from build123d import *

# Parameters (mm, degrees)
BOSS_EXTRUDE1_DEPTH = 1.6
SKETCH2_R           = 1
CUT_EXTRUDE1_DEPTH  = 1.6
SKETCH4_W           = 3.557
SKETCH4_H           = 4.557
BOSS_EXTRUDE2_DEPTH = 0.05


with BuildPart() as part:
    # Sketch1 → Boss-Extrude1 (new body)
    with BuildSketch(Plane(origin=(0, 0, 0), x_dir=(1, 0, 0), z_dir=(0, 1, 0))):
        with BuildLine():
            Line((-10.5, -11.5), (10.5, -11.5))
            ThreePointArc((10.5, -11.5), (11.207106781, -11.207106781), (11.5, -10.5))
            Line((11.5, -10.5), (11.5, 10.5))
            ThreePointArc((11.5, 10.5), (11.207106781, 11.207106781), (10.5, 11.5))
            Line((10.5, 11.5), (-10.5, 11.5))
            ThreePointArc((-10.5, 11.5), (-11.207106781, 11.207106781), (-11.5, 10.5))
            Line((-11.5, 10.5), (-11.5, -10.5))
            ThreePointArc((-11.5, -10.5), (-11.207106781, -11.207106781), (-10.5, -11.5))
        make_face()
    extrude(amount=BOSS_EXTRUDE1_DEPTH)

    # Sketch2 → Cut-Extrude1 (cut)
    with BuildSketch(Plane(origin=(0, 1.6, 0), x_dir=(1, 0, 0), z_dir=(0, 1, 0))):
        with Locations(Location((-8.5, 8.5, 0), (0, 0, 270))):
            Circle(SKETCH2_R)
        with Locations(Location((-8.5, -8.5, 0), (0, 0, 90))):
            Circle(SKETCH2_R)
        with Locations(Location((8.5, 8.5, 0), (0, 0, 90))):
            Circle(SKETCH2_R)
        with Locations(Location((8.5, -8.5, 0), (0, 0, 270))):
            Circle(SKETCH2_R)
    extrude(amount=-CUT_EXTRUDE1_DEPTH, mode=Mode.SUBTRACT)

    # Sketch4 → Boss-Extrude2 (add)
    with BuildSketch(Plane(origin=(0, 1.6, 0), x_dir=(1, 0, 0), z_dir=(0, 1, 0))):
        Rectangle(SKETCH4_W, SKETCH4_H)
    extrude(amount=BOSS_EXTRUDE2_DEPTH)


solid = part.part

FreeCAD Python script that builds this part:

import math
import FreeCAD as App
import Part
import Sketcher
Q = App.Units.Quantity


def add_polygon(sketch, points):
    """Adds a closed chain of lines whose ends are joined by coincident constraints."""
    first, n = sketch.GeometryCount, len(points)
    for a, b in zip(points, points[1:] + points[:1]):
        sketch.addGeometry(Part.LineSegment(App.Vector(*a, 0), App.Vector(*b, 0)), False)
    for i in range(n):
        sketch.addConstraint(Sketcher.Constraint("Coincident", first + i, 2, first + (i + 1) % n, 1))

doc = App.newDocument("Part")
params = doc.addObject("Spreadsheet::Sheet", "Params")
for row, (alias, value) in enumerate([
    ("sketch1_radius", "1 mm"),
    ("sketch1_width", "21 mm"),
    ("pad1_length", "1.6 mm"),
    ("sketch2_diameter", "2 mm"),
    ("pocket1_length", "1.6 mm"),
    ("pad2_length", "0.05 mm"),
], start=1):
    params.set(f"A{row}", alias)
    params.set(f"B{row}", "=" + value)
    params.setAlias(f"B{row}", alias)

body = doc.addObject("PartDesign::Body", "Body")

# Sketch on XZ plane
sketch1 = body.newObject("Sketcher::SketchObject", "Sketch")
sketch1.AttachmentSupport = (doc.getObject("XZ_Plane"), [""])
sketch1.MapMode = "FlatFace"
sketch1.addGeometry([
    Part.LineSegment(App.Vector(-10.5, 11.5, 0), App.Vector(10.5, 11.5, 0)),  # 0
    Part.ArcOfCircle(Part.Circle(App.Vector(10.5, 10.5, 0), App.Vector(0, 0, 1), 1), math.radians(0), math.radians(90)),  # 1
    Part.LineSegment(App.Vector(11.5, 10.5, 0), App.Vector(11.5, -10.5, 0)),  # 2
    Part.ArcOfCircle(Part.Circle(App.Vector(10.5, -10.5, 0), App.Vector(0, 0, 1), 1), math.radians(-90), math.radians(0)),  # 3
    Part.LineSegment(App.Vector(10.5, -11.5, 0), App.Vector(-10.5, -11.5, 0)),  # 4
    Part.ArcOfCircle(Part.Circle(App.Vector(-10.5, -10.5, 0), App.Vector(0, 0, 1), 1), math.radians(-180), math.radians(-90)),  # 5
    Part.LineSegment(App.Vector(-11.5, -10.5, 0), App.Vector(-11.5, 10.5, 0)),  # 6
    Part.ArcOfCircle(Part.Circle(App.Vector(-10.5, 10.5, 0), App.Vector(0, 0, 1), 1), math.radians(90), math.radians(180)),  # 7
], False)
sketch1.addConstraint([
    Sketcher.Constraint("Tangent", 0, 2, 1, 2),
    Sketcher.Constraint("Tangent", 1, 1, 2, 1),
    Sketcher.Constraint("Tangent", 2, 2, 3, 2),
    Sketcher.Constraint("Tangent", 3, 1, 4, 1),
    Sketcher.Constraint("Tangent", 4, 2, 5, 2),
    Sketcher.Constraint("Tangent", 5, 1, 6, 1),
    Sketcher.Constraint("Tangent", 6, 2, 7, 2),
    Sketcher.Constraint("Tangent", 7, 1, 0, 1),
    Sketcher.Constraint("Horizontal", 0),
    Sketcher.Constraint("Vertical", 2),
    Sketcher.Constraint("Horizontal", 4),
    Sketcher.Constraint("Vertical", 6),
    Sketcher.Constraint("Equal", 1, 3),
    Sketcher.Constraint("Equal", 3, 5),
    Sketcher.Constraint("Equal", 5, 7),
    Sketcher.Constraint("Symmetric", 1, 3, 5, 3, -1, 1),
    Sketcher.Constraint("Equal", 4, 2),
    Sketcher.Constraint("Radius", 1, Q("1 mm")),
    Sketcher.Constraint("DistanceX", 0, 1, 0, 2, Q("21 mm")),
])
sketch1.setExpression("Constraints[17]", "Params.sketch1_radius")
sketch1.setExpression("Constraints[18]", "Params.sketch1_width")
pad1 = body.newObject("PartDesign::Pad", "Pad")
pad1.Profile = sketch1
pad1.setExpression("Length", "Params.pad1_length")
pad1.Reversed = True

# Sketch on XZ plane
sketch2 = body.newObject("Sketcher::SketchObject", "Sketch001")
sketch2.AttachmentSupport = (doc.getObject("XZ_Plane"), [""])
sketch2.MapMode = "FlatFace"
sketch2.AttachmentOffset = App.Placement(App.Vector(0, 0, -1.6), App.Rotation())
sketch2.addGeometry([
    Part.Circle(App.Vector(-8.5, -8.5, 0), App.Vector(0, 0, 1), 1),
    Part.Circle(App.Vector(-8.5, 8.5, 0), App.Vector(0, 0, 1), 1),
    Part.Circle(App.Vector(8.5, -8.5, 0), App.Vector(0, 0, 1), 1),
    Part.Circle(App.Vector(8.5, 8.5, 0), App.Vector(0, 0, 1), 1),
], False)
sketch2.addConstraint([
    Sketcher.Constraint("Equal", 0, 1),
    Sketcher.Constraint("Equal", 1, 2),
    Sketcher.Constraint("Equal", 2, 3),
    Sketcher.Constraint("Symmetric", 1, 3, 2, 3, -1, 1),
    Sketcher.Constraint("Symmetric", 0, 3, 3, 3, -1, 1),
    Sketcher.Constraint("Symmetric", 0, 3, 2, 3, -2),
    Sketcher.Constraint("Diameter", 0, Q("2 mm")),
    Sketcher.Constraint("DistanceY", 0, 3, 1, 3, Q("17 mm")),
    Sketcher.Constraint("DistanceX", 0, 3, 2, 3, Q("17 mm")),
])
sketch2.setExpression("Constraints[6]", "Params.sketch2_diameter")
pocket1 = body.newObject("PartDesign::Pocket", "Pocket")
pocket1.Profile = sketch2
pocket1.setExpression("Length", "Params.pocket1_length")
pocket1.Reversed = True

# Sketch on XZ plane
sketch3 = body.newObject("Sketcher::SketchObject", "Sketch002")
sketch3.AttachmentSupport = (doc.getObject("XZ_Plane"), [""])
sketch3.MapMode = "FlatFace"
sketch3.AttachmentOffset = App.Placement(App.Vector(0, 0, -1.6), App.Rotation())
add_polygon(sketch3, [(-1.8, -2.3), (-1.8, 2.3), (1.8, 2.3), (1.8, -2.3)])  # lines 0-3
sketch3.addConstraint([
    Sketcher.Constraint("Vertical", 0),
    Sketcher.Constraint("Horizontal", 1),
    Sketcher.Constraint("Vertical", 2),
    Sketcher.Constraint("Horizontal", 3),
    Sketcher.Constraint("Symmetric", 0, 2, 2, 2, -1, 1),
    Sketcher.Constraint("DistanceX", 1, 1, 1, 2, Q("3.557 mm")),
    Sketcher.Constraint("DistanceY", 0, 1, 0, 2, Q("4.557 mm")),
])
pad2 = body.newObject("PartDesign::Pad", "Pad001")
pad2.Profile = sketch3
pad2.setExpression("Length", "Params.pad2_length")
pad2.Reversed = True

doc.recompute()
